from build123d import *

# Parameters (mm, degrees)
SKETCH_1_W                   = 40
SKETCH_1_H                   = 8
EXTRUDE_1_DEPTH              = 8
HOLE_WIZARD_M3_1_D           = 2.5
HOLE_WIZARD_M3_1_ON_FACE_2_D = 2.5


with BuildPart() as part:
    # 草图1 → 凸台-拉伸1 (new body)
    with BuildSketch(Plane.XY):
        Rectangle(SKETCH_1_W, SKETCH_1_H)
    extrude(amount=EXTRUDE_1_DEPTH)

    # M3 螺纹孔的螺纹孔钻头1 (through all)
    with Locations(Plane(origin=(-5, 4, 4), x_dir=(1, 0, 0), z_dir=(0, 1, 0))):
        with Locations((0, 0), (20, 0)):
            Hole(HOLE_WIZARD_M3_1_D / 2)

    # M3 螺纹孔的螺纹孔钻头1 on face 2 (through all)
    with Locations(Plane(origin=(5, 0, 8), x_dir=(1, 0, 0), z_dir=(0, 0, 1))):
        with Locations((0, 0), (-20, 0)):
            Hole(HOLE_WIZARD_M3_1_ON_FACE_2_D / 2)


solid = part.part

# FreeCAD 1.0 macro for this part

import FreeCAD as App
import Part
import Sketcher
from FreeCAD import Vector


def add_polygon(sketch, points):
    """Adds a closed chain of lines whose ends are joined by coincident constraints."""
    first, n = sketch.GeometryCount, len(points)
    for a, b in zip(points, points[1:] + points[:1]):
        sketch.addGeometry(Part.LineSegment(App.Vector(*a, 0), App.Vector(*b, 0)), False)
    for i in range(n):
        sketch.addConstraint(Sketcher.Constraint("Coincident", first + i, 2, first + (i + 1) % n, 1))

doc = App.newDocument("Part")
body = doc.addObject("PartDesign::Body", "Body")

# Sketch on XY plane
sketch1 = body.newObject("Sketcher::SketchObject", "Sketch")
sketch1.AttachmentSupport = (doc.getObject("XY_Plane"), [""])
sketch1.MapMode = "FlatFace"
add_polygon(sketch1, [(-20, 4), (-20, -4), (20, -4), (20, 4)])  # lines 0-3
sketch1.addConstraint([
    Sketcher.Constraint("Vertical", 0),
    Sketcher.Constraint("Horizontal", 1),
    Sketcher.Constraint("Vertical", 2),
    Sketcher.Constraint("Horizontal", 3),
    Sketcher.Constraint("Symmetric", 0, 2, 2, 2, -1, 1),
    Sketcher.Constraint("DistanceX", 1, 1, 1, 2, 40.0),
    Sketcher.Constraint("DistanceY", 0, 2, 0, 1, 8.0),
])
pad1 = body.newObject("PartDesign::Pad", "Pad")
pad1.Profile = sketch1
pad1.Length = 8

# Sketch on XZ plane
sketch2 = body.newObject("Sketcher::SketchObject", "Sketch001")
sketch2.AttachmentSupport = (doc.getObject("XZ_Plane"), [""])
sketch2.MapMode = "FlatFace"
sketch2.AttachmentOffset = App.Placement(Vector(0, 0, -4), App.Rotation())
sketch2.addGeometry([
    Part.Circle(Vector(-5, 4, 0), Vector(0, 0, 1), 1.2),
    Part.Circle(Vector(15, 4, 0), Vector(0, 0, 1), 1.2),
], False)
sketch2.addConstraint([
    Sketcher.Constraint("Equal", 0, 1),
    Sketcher.Constraint("Horizontal", 0, 3, 1, 3),
    Sketcher.Constraint("Diameter", 0, 2.5),
    Sketcher.Constraint("DistanceX", 0, 3, -1, 1, 5.0),
    Sketcher.Constraint("DistanceY", -1, 1, 0, 3, 4.0),
    Sketcher.Constraint("DistanceX", -1, 1, 1, 3, 15.0),
])
doc.recompute()
hole = body.newObject("PartDesign::Hole", "Hole")
hole.Profile = sketch2
hole.ThreadType = "None"
hole.Diameter = 2.5
hole.DepthType = "ThroughAll"
hole.Reversed = True

# Sketch on XY plane
sketch3 = body.newObject("Sketcher::SketchObject", "Sketch002")
sketch3.AttachmentSupport = (doc.getObject("XY_Plane"), [""])
sketch3.MapMode = "FlatFace"
sketch3.AttachmentOffset = App.Placement(Vector(0, 0, 8), App.Rotation())
sketch3.addGeometry([
    Part.Circle(Vector(5, 0, 0), Vector(0, 0, 1), 1.2),
    Part.Circle(Vector(-15, 0, 0), Vector(0, 0, 1), 1.2),
], False)
sketch3.addConstraint([
    Sketcher.Constraint("Equal", 0, 1),
    Sketcher.Constraint("PointOnObject", 0, 3, -1),
    Sketcher.Constraint("PointOnObject", 1, 3, -1),
    Sketcher.Constraint("Diameter", 0, 2.5),
    Sketcher.Constraint("DistanceX", -1, 1, 0, 3, 5.0),
    Sketcher.Constraint("DistanceX", 1, 3, -1, 1, 15.0),
])
doc.recompute()
hole2 = body.newObject("PartDesign::Hole", "Hole001")
hole2.Profile = sketch3
hole2.ThreadType = "None"
hole2.Diameter = 2.5
hole2.DepthType = "ThroughAll"

doc.recompute()
